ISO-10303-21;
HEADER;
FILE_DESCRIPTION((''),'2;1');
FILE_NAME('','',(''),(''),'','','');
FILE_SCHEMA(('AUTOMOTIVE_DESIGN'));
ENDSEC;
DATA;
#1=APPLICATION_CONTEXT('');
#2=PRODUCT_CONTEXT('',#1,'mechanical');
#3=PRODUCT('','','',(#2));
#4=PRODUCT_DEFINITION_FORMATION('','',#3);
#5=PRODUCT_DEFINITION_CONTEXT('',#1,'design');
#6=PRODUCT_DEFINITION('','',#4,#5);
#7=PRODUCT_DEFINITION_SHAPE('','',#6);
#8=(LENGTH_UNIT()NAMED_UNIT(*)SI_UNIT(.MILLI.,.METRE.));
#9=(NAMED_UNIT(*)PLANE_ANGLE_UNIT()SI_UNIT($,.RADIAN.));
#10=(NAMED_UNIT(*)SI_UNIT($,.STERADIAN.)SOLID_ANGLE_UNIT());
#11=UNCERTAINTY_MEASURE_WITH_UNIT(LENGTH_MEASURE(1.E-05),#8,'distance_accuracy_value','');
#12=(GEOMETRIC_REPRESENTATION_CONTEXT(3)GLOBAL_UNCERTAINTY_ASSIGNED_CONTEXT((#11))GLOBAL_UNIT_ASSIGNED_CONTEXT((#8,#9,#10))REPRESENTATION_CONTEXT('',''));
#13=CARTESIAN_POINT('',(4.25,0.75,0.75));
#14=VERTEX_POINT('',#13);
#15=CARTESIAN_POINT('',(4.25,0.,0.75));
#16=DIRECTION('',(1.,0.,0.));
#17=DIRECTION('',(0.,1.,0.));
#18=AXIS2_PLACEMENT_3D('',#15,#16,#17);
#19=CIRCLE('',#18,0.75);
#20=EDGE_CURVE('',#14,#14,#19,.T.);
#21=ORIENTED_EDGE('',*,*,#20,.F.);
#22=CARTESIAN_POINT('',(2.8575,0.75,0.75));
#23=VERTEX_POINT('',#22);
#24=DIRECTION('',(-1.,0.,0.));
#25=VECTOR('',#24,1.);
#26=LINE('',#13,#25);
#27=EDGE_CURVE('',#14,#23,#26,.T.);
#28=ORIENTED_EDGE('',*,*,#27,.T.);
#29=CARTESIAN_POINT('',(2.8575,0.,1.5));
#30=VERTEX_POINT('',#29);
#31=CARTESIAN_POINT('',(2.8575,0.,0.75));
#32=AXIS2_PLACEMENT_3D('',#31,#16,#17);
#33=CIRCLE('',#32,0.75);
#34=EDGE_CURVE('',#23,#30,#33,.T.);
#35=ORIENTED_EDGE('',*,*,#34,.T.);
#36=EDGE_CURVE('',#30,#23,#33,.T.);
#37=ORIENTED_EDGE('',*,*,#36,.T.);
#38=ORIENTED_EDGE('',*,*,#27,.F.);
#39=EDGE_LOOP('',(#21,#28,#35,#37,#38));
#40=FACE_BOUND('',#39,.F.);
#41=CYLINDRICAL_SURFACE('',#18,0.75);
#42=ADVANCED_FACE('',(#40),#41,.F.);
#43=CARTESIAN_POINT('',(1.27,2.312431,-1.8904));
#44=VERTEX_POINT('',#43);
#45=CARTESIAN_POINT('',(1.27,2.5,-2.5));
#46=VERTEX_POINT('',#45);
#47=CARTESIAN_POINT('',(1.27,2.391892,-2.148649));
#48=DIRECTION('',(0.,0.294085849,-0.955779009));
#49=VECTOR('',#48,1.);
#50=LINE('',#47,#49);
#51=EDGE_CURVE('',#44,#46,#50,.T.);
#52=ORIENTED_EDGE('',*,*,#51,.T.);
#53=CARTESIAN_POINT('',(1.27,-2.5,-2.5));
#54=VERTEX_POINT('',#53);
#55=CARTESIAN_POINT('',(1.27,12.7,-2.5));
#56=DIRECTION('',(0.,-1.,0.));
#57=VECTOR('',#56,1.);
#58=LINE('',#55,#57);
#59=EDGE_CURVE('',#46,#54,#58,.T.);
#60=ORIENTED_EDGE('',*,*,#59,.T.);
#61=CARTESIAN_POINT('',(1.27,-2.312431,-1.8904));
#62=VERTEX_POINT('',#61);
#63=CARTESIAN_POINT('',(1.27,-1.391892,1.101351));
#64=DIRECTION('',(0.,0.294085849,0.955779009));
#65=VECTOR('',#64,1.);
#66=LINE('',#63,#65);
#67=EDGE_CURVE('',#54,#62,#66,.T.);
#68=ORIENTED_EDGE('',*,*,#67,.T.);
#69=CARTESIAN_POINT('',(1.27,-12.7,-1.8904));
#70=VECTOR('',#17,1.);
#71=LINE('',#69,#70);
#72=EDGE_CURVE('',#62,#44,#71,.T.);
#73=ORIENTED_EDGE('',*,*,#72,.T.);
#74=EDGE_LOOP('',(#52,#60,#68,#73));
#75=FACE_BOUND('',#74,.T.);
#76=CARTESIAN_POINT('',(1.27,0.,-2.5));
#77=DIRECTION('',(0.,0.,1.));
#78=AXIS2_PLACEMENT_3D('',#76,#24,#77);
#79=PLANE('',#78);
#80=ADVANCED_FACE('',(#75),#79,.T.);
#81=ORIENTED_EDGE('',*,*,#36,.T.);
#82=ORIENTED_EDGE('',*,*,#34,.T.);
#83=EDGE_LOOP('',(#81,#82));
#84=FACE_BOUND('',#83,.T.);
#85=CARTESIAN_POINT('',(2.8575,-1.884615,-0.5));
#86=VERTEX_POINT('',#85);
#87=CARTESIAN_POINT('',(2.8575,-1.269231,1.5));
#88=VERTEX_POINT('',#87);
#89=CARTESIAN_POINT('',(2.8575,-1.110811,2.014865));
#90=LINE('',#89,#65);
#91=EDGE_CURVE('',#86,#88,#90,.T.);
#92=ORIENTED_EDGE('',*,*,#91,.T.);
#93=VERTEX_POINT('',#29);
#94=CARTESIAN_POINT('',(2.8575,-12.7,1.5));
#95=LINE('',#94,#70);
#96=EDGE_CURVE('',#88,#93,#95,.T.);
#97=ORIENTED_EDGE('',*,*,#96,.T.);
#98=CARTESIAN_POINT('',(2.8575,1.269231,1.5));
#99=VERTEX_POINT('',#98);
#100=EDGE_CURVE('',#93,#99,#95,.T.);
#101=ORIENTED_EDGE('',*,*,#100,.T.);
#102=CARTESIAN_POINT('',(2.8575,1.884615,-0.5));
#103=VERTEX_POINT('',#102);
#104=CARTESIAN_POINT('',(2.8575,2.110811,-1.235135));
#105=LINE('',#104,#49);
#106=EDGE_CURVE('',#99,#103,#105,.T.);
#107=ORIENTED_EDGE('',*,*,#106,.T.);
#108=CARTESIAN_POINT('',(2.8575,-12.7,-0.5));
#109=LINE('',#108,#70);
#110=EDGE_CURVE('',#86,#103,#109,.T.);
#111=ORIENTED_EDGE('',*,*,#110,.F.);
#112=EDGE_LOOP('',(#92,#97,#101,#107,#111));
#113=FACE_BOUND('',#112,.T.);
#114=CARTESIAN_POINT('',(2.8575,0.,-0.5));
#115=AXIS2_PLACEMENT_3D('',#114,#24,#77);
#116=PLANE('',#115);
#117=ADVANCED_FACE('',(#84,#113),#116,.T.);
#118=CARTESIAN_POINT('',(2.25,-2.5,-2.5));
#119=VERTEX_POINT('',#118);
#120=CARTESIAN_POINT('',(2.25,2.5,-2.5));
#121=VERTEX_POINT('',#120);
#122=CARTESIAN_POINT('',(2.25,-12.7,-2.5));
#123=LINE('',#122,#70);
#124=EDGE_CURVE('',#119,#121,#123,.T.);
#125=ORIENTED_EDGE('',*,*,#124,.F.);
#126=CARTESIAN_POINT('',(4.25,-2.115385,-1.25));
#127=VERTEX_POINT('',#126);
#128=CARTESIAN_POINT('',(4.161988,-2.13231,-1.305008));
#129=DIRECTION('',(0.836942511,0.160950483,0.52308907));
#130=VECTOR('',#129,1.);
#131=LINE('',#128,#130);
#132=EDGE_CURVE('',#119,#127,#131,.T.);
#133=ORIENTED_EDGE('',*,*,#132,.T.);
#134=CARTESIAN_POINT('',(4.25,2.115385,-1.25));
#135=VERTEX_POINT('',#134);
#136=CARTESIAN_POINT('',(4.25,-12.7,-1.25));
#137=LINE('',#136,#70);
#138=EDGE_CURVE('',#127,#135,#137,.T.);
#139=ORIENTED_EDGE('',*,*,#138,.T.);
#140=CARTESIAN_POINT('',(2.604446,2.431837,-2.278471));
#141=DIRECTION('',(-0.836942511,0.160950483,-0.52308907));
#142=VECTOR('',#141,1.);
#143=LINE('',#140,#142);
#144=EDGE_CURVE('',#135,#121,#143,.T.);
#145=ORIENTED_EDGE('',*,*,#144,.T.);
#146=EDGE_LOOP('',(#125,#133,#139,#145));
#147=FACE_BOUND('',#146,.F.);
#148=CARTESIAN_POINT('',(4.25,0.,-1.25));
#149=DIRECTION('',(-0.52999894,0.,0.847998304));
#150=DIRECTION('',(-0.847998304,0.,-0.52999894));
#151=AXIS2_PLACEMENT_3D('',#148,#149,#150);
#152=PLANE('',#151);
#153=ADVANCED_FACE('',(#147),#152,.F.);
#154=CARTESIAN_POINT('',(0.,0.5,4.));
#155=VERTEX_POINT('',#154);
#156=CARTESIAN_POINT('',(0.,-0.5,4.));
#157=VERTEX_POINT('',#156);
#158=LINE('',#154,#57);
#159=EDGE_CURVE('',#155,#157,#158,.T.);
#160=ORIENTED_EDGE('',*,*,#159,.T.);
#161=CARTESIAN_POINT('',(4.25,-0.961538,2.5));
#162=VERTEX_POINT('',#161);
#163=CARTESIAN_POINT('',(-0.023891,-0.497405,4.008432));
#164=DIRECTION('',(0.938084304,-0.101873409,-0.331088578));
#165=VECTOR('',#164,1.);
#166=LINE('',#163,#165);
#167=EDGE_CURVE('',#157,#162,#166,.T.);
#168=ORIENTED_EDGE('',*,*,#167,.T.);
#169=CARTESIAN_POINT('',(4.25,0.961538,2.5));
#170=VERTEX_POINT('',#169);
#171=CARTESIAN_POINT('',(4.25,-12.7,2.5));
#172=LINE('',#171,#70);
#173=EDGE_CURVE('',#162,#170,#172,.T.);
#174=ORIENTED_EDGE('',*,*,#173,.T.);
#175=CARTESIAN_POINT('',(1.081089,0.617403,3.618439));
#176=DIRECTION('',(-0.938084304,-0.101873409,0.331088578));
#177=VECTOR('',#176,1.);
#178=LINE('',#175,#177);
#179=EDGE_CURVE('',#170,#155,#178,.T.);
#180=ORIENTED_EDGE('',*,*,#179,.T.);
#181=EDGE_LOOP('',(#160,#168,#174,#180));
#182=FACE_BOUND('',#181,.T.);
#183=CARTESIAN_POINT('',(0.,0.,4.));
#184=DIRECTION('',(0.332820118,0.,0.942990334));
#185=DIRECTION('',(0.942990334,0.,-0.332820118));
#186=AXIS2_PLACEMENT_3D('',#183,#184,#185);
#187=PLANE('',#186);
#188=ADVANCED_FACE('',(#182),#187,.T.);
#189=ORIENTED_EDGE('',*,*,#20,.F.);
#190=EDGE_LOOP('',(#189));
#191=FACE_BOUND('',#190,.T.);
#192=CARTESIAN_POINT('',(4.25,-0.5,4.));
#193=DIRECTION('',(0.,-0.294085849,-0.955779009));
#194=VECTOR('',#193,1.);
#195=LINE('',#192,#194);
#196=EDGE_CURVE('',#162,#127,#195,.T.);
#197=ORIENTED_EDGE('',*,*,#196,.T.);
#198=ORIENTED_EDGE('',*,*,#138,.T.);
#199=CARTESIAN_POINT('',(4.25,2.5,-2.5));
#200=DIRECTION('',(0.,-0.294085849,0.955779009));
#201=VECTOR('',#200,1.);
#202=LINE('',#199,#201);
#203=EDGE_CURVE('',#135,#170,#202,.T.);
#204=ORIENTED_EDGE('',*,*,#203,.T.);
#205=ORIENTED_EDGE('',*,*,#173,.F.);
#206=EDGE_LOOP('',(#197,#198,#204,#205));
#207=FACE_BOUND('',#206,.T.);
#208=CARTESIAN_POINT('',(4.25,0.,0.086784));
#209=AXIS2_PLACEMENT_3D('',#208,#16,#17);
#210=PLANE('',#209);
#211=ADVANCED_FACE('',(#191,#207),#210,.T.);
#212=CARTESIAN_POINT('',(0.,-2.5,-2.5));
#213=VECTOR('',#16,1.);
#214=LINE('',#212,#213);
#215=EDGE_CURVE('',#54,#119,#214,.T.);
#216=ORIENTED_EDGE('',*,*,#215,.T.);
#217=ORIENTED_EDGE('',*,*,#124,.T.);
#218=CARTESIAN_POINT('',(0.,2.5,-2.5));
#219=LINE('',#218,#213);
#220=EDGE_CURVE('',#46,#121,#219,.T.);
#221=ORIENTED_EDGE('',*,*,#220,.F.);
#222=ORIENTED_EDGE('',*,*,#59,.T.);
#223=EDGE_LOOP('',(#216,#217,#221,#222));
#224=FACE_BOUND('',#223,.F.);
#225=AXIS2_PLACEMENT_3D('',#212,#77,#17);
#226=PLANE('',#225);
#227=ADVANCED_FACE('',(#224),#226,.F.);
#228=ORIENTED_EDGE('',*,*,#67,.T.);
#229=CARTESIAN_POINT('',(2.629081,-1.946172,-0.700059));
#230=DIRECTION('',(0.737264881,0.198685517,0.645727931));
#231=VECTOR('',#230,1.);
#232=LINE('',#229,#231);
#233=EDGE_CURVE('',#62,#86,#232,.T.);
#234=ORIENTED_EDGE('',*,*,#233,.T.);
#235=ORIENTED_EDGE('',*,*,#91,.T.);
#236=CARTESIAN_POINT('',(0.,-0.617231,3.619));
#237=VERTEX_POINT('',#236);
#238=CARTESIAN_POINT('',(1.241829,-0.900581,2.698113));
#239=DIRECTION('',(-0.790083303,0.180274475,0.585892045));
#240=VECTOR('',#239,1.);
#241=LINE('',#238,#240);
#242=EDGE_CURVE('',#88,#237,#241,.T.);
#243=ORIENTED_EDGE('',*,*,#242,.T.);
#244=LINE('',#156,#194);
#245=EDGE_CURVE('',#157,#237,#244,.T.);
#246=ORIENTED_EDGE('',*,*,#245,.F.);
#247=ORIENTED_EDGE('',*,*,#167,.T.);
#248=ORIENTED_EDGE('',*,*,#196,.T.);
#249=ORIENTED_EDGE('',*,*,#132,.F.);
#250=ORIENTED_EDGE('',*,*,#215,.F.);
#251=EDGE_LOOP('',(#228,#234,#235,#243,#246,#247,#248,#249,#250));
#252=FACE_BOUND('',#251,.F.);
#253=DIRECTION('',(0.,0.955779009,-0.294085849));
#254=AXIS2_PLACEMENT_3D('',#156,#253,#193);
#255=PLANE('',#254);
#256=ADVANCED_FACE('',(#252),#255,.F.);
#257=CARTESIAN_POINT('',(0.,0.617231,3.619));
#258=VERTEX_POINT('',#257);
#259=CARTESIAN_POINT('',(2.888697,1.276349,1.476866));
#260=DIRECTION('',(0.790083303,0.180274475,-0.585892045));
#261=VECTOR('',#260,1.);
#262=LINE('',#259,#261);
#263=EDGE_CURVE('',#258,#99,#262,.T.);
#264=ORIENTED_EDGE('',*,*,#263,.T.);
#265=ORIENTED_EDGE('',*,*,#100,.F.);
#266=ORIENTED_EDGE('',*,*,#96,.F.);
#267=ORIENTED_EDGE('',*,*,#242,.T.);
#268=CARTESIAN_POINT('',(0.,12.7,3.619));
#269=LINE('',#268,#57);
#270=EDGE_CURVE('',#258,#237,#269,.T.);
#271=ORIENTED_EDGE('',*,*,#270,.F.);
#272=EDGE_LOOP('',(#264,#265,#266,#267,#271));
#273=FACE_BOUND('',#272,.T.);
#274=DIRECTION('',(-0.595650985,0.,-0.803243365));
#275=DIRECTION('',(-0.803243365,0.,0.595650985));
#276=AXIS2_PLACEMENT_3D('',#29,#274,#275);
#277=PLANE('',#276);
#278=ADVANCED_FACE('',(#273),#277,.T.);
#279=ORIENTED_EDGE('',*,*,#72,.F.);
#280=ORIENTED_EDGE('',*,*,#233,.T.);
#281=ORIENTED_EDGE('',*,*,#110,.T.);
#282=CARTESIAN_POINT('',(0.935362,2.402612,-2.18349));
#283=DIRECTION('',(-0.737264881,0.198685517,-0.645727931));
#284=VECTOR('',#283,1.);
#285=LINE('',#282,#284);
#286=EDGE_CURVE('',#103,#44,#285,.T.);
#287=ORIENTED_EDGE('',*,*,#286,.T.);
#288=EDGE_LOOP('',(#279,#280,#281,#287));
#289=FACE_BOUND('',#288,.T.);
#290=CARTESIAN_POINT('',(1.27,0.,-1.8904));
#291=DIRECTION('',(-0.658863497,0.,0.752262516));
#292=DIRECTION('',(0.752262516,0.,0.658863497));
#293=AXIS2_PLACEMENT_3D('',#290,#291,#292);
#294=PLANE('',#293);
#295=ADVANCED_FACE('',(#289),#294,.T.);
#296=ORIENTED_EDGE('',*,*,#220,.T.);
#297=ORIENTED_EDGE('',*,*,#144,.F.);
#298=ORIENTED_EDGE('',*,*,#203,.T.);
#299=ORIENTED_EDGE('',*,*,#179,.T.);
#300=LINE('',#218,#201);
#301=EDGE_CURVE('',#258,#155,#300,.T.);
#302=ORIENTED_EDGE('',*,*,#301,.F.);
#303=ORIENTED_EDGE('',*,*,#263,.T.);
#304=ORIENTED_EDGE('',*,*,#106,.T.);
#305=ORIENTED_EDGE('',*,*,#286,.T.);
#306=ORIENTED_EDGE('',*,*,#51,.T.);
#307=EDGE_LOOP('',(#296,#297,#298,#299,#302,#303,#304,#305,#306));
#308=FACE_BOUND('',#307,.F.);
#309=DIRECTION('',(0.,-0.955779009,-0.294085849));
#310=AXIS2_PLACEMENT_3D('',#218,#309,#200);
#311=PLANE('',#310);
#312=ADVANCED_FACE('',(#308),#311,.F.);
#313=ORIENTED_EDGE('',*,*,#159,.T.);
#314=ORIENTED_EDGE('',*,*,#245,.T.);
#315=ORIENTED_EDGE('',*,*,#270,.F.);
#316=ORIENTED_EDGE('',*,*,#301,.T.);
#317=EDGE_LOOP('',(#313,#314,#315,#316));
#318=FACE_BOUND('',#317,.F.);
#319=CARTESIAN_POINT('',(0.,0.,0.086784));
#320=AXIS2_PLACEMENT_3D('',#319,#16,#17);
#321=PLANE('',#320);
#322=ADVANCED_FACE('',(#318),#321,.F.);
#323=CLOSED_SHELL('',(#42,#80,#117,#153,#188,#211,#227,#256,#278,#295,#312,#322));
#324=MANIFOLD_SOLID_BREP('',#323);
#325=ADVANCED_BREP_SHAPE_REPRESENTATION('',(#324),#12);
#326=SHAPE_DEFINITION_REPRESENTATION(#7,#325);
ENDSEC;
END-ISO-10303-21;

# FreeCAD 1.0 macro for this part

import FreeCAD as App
import Part
import Sketcher
from FreeCAD import Vector


def add_polygon(sketch, points):
    """Adds a closed chain of lines whose ends are joined by coincident constraints."""
    first, n = sketch.GeometryCount, len(points)
    for a, b in zip(points, points[1:] + points[:1]):
        sketch.addGeometry(Part.LineSegment(App.Vector(*a, 0), App.Vector(*b, 0)), False)
    for i in range(n):
        sketch.addConstraint(Sketcher.Constraint("Coincident", first + i, 2, first + (i + 1) % n, 1))

doc = App.newDocument("Part")
body = doc.addObject("PartDesign::Body", "Body")

# Sketch on YZ plane
sketch1 = body.newObject("Sketcher::SketchObject", "Sketch")
sketch1.AttachmentSupport = (doc.getObject("YZ_Plane"), [""])
sketch1.MapMode = "FlatFace"
add_polygon(sketch1, [(0.5, 4), (-0.5, 4), (-2.5, -2.5), (2.5, -2.5)])  # lines 0-3
sketch1.addConstraint(Sketcher.Constraint("Horizontal", 0))
sketch1.addConstraint(Sketcher.Constraint("Horizontal", 2))
sketch1.addConstraint(Sketcher.Constraint("Equal", 1, 3))
sketch1.addConstraint(Sketcher.Constraint("DistanceX", 0, 2, 0, 1, 1.0))
sketch1.addConstraint(Sketcher.Constraint("DistanceX", 2, 1, 2, 2, 5.0))
sketch1.addConstraint(Sketcher.Constraint("DistanceY", -1, 1, 0, 2, 4.0))
sketch1.addConstraint(Sketcher.Constraint("DistanceX", 0, 2, -1, 1, 0.5))
sketch1.addConstraint(Sketcher.Constraint("DistanceY", 1, 2, -1, 1, 2.5))
pad1 = body.newObject("PartDesign::Pad", "Pad")
pad1.Profile = sketch1
pad1.Length = 4.25

# Sketch on YZ plane
sketch2 = body.newObject("Sketcher::SketchObject", "Sketch001")
sketch2.AttachmentSupport = (doc.getObject("YZ_Plane"), [""])
sketch2.MapMode = "FlatFace"
sketch2.AttachmentOffset = App.Placement(Vector(0, 0, 4.25), App.Rotation())
sketch2.addGeometry(Part.Circle(Vector(0, 0.75, 0), Vector(0, 0, 1), 0.75), False)
sketch2.addConstraint(Sketcher.Constraint("PointOnObject", 0, 3, -2))
sketch2.addConstraint(Sketcher.Constraint("Diameter", 0, 1.5))
sketch2.addConstraint(Sketcher.Constraint("DistanceY", -1, 1, 0, 3, 0.75))
pocket1 = body.newObject("PartDesign::Pocket", "Pocket")
pocket1.Profile = sketch2
pocket1.Type = "ThroughAll"

# Sketch on XZ plane
sketch3 = body.newObject("Sketcher::SketchObject", "Sketch002")
sketch3.AttachmentSupport = (doc.getObject("XZ_Plane"), [""])
sketch3.MapMode = "FlatFace"
add_polygon(sketch3, [(2.8575, 1.5), (0, 3.619), (0, -2.5), (1.27, -2.5), (1.27, -1.8904), (2.8575, -0.5)])  # lines 0-5
add_polygon(sketch3, [(4.25, 2.5), (4.25, 4), (0, 4)])  # lines 6-8
add_polygon(sketch3, [(2.25, -2.5), (4.25, -2.5), (4.25, -1.25)])  # lines 9-11
sketch3.addConstraint(Sketcher.Constraint("Vertical", 1))
sketch3.addConstraint(Sketcher.Constraint("Horizontal", 2))
sketch3.addConstraint(Sketcher.Constraint("Vertical", 3))
sketch3.addConstraint(Sketcher.Constraint("Vertical", 5))
sketch3.addConstraint(Sketcher.Constraint("Vertical", 6))
sketch3.addConstraint(Sketcher.Constraint("Horizontal", 7))
sketch3.addConstraint(Sketcher.Constraint("Horizontal", 9))
sketch3.addConstraint(Sketcher.Constraint("Vertical", 10))
sketch3.addConstraint(Sketcher.Constraint("Symmetric", 8, 2, 9, 2, -1))
sketch3.addConstraint(Sketcher.Constraint("PointOnObject", 0, 2, -2))
sketch3.addConstraint(Sketcher.Constraint("PointOnObject", 7, 2, -2))
sketch3.addConstraint(Sketcher.Constraint("Horizontal", 2, 2, 9, 2))
sketch3.addConstraint(Sketcher.Constraint("Equal", 9, 5))
sketch3.addConstraint(Sketcher.Constraint("DistanceX", 9, 1, 9, 2, 2.0))
sketch3.addConstraint(Sketcher.Constraint("DistanceY", 6, 1, 6, 2, 1.5))
sketch3.addConstraint(Sketcher.Constraint("DistanceY", -1, 1, 6, 2, 4.0))
sketch3.addConstraint(Sketcher.Constraint("DistanceY", 2, 2, 4, 2, 2.0))
sketch3.addConstraint(Sketcher.Constraint("DistanceX", 2, 1, 2, 2, 1.27))
sketch3.addConstraint(Sketcher.Constraint("DistanceX", 7, 2, 7, 1, 4.25))
sketch3.addConstraint(Sketcher.Constraint("DistanceY", 10, 1, 10, 2, 1.25))
sketch3.addConstraint(Sketcher.Constraint("DistanceY", 1, 2, 1, 1, 6.119))
sketch3.addConstraint(Sketcher.Constraint("DistanceY", 3, 1, 3, 2, 0.6096))
sketch3.addConstraint(Sketcher.Constraint("Distance", 4, 2.110301))
pocket2 = body.newObject("PartDesign::Pocket", "Pocket001")
pocket2.Profile = sketch3
pocket2.Length = 25.4
pocket2.Midplane = True

doc.recompute()
